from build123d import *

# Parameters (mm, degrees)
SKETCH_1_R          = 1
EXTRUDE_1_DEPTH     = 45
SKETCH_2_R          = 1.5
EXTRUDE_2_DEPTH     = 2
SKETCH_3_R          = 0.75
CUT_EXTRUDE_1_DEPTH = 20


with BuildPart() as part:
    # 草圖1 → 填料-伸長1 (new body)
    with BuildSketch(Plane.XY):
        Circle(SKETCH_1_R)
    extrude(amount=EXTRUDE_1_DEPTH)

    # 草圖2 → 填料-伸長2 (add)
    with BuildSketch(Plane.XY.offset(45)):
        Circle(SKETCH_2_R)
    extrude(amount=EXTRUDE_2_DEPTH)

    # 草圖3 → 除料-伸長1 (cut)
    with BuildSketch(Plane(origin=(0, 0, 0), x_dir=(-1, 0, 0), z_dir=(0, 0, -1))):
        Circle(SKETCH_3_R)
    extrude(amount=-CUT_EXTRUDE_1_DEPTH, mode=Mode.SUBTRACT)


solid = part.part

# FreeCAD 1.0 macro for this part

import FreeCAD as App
import Part
import Sketcher

V = App.Vector

doc = App.newDocument("Part")
body = doc.addObject("PartDesign::Body", "Body")

# Sketch on XY plane
sketch1 = body.newObject("Sketcher::SketchObject", "Sketch")
sketch1.AttachmentSupport = (doc.getObject("XY_Plane"), [""])
sketch1.MapMode = "FlatFace"
sketch1.addGeometry(Part.Circle(V(0, 0, 0), V(0, 0, 1), 1), False)
sketch1.addConstraint([
    Sketcher.Constraint("Coincident", 0, 3, -1, 1),
    Sketcher.Constraint("Diameter", 0, 2.0),
])
pad1 = body.newObject("PartDesign::Pad", "Pad")
pad1.Profile = sketch1
pad1.Length = 45

# Sketch on XY plane
sketch2 = body.newObject("Sketcher::SketchObject", "Sketch001")
sketch2.AttachmentSupport = (doc.getObject("XY_Plane"), [""])
sketch2.MapMode = "FlatFace"
sketch2.AttachmentOffset = App.Placement(V(0, 0, 45), App.Rotation())
sketch2.addGeometry(Part.Circle(V(0, 0, 0), V(0, 0, 1), 1.5), False)
sketch2.addConstraint([
    Sketcher.Constraint("Coincident", 0, 3, -1, 1),
    Sketcher.Constraint("Diameter", 0, 3.0),
])
pad2 = body.newObject("PartDesign::Pad", "Pad001")
pad2.Profile = sketch2
pad2.Length = 2

# Sketch on XY plane
sketch3 = body.newObject("Sketcher::SketchObject", "Sketch002")
sketch3.AttachmentSupport = (doc.getObject("XY_Plane"), [""])
sketch3.MapMode = "FlatFace"
sketch3.addGeometry(Part.Circle(V(0, 0, 0), V(0, 0, 1), 0.8), False)
sketch3.addConstraint([
    Sketcher.Constraint("Coincident", 0, 3, -1, 1),
    Sketcher.Constraint("Diameter", 0, 1.5),
])
pocket1 = body.newObject("PartDesign::Pocket", "Pocket")
pocket1.Profile = sketch3
pocket1.Length = 20
pocket1.Reversed = True

doc.recompute()
